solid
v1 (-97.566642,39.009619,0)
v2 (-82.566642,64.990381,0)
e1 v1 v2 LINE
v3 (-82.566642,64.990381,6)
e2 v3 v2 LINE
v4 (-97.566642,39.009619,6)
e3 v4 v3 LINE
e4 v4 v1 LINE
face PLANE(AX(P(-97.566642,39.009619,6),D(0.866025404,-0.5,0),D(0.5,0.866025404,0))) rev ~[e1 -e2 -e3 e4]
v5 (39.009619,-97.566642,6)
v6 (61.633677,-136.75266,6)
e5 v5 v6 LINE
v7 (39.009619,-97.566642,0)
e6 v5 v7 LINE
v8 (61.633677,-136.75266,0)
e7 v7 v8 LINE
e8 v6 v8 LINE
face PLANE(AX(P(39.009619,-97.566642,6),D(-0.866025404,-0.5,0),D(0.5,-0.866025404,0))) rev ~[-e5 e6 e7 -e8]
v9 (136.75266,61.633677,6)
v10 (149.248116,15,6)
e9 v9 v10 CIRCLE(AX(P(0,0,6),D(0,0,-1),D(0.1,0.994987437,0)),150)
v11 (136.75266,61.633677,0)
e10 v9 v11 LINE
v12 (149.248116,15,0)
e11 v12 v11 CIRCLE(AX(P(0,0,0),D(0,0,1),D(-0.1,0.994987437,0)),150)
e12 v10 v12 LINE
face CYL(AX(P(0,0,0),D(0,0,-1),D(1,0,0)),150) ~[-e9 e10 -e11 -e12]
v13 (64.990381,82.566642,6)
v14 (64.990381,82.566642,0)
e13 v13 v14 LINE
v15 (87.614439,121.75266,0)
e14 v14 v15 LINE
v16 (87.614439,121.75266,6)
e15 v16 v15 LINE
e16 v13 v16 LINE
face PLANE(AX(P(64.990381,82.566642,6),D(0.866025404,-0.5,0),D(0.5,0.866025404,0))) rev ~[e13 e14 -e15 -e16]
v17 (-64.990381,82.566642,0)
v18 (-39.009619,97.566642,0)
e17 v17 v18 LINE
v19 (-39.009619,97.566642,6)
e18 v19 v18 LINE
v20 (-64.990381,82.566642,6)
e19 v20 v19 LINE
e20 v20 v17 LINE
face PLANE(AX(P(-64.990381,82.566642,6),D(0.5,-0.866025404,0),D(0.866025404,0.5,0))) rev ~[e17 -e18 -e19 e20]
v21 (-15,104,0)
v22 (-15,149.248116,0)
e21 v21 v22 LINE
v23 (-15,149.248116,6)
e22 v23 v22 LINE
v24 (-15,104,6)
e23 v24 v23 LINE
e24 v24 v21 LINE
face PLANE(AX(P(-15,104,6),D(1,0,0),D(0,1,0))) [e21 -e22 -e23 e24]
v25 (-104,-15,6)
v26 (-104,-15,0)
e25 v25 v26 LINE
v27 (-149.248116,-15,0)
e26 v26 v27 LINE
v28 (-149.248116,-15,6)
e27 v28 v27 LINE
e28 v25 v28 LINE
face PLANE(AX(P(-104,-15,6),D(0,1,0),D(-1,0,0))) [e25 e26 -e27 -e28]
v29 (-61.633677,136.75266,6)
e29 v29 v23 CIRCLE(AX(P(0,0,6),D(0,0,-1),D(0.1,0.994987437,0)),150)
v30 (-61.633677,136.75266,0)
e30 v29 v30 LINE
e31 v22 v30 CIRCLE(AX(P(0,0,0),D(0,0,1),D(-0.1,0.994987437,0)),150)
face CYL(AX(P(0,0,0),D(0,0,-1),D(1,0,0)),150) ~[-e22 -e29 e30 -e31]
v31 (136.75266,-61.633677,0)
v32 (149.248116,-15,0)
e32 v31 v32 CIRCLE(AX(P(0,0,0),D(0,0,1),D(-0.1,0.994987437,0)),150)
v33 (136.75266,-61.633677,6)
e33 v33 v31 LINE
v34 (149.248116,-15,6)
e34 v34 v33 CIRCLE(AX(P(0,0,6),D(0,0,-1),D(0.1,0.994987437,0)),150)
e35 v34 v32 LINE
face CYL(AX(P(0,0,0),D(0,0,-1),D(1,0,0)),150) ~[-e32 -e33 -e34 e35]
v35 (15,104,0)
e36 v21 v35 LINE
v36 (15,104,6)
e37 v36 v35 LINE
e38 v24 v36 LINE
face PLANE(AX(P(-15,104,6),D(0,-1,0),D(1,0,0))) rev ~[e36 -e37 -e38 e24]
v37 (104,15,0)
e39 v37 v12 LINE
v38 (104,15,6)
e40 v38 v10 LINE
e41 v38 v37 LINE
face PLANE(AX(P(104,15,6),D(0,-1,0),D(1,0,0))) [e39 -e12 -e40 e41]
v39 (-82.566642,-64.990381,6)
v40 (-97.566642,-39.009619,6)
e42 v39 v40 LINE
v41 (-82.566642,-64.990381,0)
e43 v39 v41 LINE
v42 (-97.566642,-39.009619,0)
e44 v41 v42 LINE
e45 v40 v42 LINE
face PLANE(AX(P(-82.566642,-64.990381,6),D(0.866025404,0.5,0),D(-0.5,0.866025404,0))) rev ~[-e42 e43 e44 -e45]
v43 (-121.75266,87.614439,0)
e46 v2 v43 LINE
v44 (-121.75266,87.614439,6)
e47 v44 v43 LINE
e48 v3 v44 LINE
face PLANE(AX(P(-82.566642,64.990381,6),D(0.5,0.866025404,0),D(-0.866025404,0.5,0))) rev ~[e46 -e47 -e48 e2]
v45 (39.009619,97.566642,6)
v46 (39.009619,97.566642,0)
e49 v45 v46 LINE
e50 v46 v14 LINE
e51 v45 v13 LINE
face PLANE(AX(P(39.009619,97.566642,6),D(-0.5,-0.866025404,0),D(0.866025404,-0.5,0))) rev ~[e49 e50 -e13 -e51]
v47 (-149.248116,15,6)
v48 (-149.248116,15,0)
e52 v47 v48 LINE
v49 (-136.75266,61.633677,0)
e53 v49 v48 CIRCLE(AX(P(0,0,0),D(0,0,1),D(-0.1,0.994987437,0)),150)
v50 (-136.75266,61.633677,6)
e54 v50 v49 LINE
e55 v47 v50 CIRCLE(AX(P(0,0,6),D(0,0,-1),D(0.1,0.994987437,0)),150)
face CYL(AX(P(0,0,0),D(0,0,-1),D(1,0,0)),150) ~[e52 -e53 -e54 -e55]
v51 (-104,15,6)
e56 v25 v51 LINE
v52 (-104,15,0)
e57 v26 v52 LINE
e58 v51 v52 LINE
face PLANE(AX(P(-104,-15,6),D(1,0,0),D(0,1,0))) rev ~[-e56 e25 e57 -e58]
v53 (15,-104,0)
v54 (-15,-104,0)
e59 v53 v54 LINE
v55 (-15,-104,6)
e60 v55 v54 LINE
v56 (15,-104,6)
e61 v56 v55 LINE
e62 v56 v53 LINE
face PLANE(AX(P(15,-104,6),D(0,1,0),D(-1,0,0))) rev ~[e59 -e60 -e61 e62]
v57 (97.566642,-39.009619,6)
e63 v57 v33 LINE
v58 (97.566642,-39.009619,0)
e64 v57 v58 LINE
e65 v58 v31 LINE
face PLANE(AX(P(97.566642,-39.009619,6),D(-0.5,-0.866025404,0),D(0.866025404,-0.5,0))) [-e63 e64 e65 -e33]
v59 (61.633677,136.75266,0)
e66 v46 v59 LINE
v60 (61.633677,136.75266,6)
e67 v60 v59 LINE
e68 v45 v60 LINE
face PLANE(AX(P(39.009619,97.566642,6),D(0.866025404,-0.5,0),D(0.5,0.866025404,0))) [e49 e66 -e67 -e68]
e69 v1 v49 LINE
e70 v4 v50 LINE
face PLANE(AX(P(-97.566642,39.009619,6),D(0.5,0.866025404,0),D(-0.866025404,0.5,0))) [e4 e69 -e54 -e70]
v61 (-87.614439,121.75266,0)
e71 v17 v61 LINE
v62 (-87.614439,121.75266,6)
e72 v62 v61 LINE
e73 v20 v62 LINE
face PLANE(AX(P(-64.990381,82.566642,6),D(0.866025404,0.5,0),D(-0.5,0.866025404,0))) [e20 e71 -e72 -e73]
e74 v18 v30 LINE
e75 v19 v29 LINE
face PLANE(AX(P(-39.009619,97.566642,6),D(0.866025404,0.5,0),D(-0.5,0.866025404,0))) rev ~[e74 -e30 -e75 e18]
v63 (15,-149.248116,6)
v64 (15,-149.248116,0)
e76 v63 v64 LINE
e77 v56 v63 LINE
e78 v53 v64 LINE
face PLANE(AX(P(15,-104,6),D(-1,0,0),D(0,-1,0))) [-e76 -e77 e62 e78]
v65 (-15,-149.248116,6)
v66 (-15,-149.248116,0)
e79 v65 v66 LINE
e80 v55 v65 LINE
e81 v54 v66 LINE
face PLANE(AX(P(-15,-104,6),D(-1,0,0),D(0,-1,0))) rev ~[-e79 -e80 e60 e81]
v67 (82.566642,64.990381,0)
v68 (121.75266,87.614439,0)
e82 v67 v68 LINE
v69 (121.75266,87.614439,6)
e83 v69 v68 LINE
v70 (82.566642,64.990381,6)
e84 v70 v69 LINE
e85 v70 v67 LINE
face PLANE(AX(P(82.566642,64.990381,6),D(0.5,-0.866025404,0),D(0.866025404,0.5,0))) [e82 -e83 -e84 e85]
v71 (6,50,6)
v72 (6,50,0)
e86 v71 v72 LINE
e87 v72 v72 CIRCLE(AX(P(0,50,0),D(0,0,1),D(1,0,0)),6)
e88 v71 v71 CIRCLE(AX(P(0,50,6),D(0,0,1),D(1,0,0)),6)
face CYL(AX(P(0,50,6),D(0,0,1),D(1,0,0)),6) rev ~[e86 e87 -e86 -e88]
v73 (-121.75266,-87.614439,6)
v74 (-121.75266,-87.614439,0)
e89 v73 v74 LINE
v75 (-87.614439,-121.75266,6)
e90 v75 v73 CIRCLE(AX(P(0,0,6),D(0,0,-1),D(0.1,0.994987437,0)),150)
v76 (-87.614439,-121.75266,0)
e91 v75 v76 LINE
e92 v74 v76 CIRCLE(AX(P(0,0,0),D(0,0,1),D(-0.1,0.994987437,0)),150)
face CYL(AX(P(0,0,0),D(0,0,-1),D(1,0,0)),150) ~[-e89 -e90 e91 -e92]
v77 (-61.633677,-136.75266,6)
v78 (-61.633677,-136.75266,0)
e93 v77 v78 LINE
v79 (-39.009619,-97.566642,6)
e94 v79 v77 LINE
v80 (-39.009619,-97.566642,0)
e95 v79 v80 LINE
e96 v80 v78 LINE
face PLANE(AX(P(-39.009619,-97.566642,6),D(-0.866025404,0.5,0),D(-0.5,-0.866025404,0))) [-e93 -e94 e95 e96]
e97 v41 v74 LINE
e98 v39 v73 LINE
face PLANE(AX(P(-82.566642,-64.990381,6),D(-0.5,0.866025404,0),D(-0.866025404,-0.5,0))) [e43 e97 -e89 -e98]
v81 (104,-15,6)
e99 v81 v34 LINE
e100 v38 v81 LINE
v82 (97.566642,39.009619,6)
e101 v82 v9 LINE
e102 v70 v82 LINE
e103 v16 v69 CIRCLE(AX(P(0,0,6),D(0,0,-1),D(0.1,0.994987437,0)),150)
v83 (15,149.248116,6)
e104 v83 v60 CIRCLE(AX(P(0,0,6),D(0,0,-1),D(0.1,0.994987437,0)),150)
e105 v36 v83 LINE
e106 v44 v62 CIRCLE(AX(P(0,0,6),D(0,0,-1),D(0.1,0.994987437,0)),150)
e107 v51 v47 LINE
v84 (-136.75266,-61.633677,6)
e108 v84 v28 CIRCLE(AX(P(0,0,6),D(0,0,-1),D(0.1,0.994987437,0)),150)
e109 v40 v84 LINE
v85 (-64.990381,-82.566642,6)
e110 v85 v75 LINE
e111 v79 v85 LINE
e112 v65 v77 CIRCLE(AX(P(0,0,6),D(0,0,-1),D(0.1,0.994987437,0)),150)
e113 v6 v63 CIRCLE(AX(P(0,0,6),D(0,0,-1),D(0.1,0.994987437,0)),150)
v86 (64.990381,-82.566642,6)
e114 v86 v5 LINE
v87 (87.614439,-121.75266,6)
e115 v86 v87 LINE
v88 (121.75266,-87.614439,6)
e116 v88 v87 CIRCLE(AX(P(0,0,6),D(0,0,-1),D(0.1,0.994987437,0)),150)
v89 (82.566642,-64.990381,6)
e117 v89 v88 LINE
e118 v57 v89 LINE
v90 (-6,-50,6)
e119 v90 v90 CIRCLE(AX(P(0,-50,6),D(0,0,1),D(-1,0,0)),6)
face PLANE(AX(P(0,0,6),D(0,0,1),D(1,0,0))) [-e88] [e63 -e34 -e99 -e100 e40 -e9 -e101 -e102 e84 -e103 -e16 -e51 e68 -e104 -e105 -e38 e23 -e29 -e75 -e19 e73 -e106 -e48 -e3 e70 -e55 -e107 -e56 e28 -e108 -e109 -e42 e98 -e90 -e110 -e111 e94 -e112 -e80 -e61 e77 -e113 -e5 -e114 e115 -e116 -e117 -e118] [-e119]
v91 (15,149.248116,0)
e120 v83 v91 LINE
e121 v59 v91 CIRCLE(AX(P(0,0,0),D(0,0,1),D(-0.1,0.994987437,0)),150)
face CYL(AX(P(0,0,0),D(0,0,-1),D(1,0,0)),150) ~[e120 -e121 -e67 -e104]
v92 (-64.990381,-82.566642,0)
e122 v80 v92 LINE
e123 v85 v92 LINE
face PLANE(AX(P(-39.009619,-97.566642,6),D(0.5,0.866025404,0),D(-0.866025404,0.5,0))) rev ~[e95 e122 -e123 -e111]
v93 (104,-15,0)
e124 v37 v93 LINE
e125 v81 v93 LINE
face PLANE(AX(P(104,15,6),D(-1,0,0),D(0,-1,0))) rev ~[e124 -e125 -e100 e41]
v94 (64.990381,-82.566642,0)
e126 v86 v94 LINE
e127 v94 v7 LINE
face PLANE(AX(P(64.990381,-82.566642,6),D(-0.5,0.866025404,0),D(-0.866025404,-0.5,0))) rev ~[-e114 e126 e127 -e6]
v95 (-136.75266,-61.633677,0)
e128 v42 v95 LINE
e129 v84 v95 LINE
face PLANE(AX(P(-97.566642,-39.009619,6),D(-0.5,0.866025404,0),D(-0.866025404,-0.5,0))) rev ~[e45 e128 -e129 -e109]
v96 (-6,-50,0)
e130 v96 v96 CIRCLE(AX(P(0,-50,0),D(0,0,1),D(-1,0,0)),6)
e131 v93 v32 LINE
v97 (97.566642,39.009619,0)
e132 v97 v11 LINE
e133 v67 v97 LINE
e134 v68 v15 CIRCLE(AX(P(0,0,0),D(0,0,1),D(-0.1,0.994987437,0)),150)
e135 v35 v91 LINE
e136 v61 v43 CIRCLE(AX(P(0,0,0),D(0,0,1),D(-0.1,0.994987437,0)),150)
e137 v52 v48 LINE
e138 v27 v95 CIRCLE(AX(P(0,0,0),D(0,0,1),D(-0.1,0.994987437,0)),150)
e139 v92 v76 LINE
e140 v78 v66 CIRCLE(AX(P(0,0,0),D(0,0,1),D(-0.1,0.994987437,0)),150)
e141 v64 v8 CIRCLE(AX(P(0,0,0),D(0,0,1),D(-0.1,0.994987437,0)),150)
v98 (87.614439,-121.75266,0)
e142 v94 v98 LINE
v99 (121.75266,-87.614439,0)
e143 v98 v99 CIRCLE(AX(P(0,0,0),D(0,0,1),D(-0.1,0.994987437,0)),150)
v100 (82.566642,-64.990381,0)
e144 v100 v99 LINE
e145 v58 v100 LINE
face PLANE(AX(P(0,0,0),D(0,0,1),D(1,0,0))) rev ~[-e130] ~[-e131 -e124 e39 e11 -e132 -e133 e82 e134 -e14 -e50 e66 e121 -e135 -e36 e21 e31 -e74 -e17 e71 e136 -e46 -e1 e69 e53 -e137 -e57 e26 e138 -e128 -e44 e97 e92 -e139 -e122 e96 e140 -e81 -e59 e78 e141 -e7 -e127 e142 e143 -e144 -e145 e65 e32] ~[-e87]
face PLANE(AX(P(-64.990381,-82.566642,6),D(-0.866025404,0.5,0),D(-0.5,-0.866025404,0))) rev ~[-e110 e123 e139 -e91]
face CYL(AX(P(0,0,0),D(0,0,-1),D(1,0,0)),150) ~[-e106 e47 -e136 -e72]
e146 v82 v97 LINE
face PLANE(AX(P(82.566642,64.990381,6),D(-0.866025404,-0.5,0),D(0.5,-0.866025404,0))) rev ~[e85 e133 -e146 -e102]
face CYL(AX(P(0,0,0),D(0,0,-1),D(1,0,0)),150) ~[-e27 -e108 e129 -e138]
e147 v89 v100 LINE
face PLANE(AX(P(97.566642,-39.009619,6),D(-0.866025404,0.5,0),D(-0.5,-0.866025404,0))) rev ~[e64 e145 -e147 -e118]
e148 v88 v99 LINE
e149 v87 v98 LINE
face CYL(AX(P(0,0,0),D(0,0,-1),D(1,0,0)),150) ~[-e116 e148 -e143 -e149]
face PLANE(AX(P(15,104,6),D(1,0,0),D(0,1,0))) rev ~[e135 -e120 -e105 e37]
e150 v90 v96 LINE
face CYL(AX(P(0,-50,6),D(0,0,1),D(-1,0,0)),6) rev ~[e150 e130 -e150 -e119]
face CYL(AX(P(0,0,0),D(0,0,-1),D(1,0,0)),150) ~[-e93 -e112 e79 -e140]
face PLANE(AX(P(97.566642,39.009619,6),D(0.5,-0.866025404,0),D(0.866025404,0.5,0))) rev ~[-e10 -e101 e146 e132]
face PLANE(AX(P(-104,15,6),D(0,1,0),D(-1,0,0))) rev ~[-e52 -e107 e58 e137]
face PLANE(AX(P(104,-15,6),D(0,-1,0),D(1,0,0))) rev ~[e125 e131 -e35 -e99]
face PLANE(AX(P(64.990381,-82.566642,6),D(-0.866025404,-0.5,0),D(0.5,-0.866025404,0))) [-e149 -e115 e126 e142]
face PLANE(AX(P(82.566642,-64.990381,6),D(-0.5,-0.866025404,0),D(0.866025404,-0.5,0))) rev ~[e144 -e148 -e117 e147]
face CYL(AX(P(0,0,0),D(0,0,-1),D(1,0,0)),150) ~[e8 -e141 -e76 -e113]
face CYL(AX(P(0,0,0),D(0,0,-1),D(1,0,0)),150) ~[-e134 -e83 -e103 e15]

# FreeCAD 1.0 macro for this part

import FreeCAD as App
import Part
import Sketcher

V = App.Vector
Q = App.Units.Quantity


def add_polygon(sketch, points):
    """Adds a closed chain of lines whose ends are joined by coincident constraints."""
    first, n = sketch.GeometryCount, len(points)
    for a, b in zip(points, points[1:] + points[:1]):
        sketch.addGeometry(Part.LineSegment(App.Vector(*a, 0), App.Vector(*b, 0)), False)
    for i in range(n):
        sketch.addConstraint(Sketcher.Constraint("Coincident", first + i, 2, first + (i + 1) % n, 1))

doc = App.newDocument("Part")
body = doc.addObject("PartDesign::Body", "Body")

# Sketch on XY plane
sketch1 = body.newObject("Sketcher::SketchObject", "Sketch")
sketch1.AttachmentSupport = (doc.getObject("XY_Plane"), [""])
sketch1.MapMode = "FlatFace"
sketch1.addGeometry(Part.Circle(V(0, 0, 0), V(0, 0, 1), 150), False)
sketch1.addConstraint([
    Sketcher.Constraint("Coincident", 0, 3, -1, 1),
    Sketcher.Constraint("Diameter", 0, Q("300 mm")),
])
pad1 = body.newObject("PartDesign::Pad", "Pad")
pad1.Profile = sketch1
pad1.Length = 6

# Sketch on XY plane
sketch2 = body.newObject("Sketcher::SketchObject", "Sketch001")
sketch2.AttachmentSupport = (doc.getObject("XY_Plane"), [""])
sketch2.MapMode = "FlatFace"
sketch2.AttachmentOffset = App.Placement(V(0, 0, 6), App.Rotation())
sketch2.addGeometry(Part.Circle(V(0, 50, 0), V(0, 0, 1), 6), False)
sketch2.addConstraint([
    Sketcher.Constraint("PointOnObject", 0, 3, -2),
    Sketcher.Constraint("Diameter", 0, Q("12 mm")),
    Sketcher.Constraint("DistanceY", -1, 1, 0, 3, Q("50 mm")),
])
pocket1 = body.newObject("PartDesign::Pocket", "Pocket")
pocket1.Profile = sketch2
pocket1.Type = "ThroughAll"

# Sketch on XY plane
sketch3 = body.newObject("Sketcher::SketchObject", "Sketch002")
sketch3.AttachmentSupport = (doc.getObject("XY_Plane"), [""])
sketch3.MapMode = "FlatFace"
sketch3.AttachmentOffset = App.Placement(V(0, 0, 6), App.Rotation())
add_polygon(sketch3, [(-15, 150), (-15, 104), (15, 104), (15, 150)])  # lines 0-3
sketch3.addConstraint([
    Sketcher.Constraint("Vertical", 0),
    Sketcher.Constraint("Horizontal", 1),
    Sketcher.Constraint("Vertical", 2),
    Sketcher.Constraint("Horizontal", 3),
    Sketcher.Constraint("DistanceX", 1, 1, 1, 2, Q("30 mm")),
    Sketcher.Constraint("DistanceY", 0, 2, 0, 1, Q("46 mm")),
    Sketcher.Constraint("DistanceX", 0, 2, -1, 1, Q("15 mm")),
    Sketcher.Constraint("DistanceY", -1, 1, 0, 2, Q("104 mm")),
])
pocket2 = body.newObject("PartDesign::Pocket", "Pocket001")
pocket2.Profile = sketch3
pocket2.Type = "ThroughAll"
doc.recompute()

polarpattern = body.newObject("PartDesign::PolarPattern", "PolarPattern")
polarpattern.Originals = [pocket2]
polarpattern.Axis = (doc.getObject("Z_Axis"), [""])
polarpattern.Angle = 360
polarpattern.Occurrences = 12
body.Tip = polarpattern
doc.recompute()

polarpattern2 = body.newObject("PartDesign::PolarPattern", "PolarPattern001")
polarpattern2.Originals = [pocket1]
polarpattern2.Axis = (doc.getObject("Z_Axis"), [""])
polarpattern2.Angle = 360
polarpattern2.Occurrences = 2
body.Tip = polarpattern2

doc.recompute()
